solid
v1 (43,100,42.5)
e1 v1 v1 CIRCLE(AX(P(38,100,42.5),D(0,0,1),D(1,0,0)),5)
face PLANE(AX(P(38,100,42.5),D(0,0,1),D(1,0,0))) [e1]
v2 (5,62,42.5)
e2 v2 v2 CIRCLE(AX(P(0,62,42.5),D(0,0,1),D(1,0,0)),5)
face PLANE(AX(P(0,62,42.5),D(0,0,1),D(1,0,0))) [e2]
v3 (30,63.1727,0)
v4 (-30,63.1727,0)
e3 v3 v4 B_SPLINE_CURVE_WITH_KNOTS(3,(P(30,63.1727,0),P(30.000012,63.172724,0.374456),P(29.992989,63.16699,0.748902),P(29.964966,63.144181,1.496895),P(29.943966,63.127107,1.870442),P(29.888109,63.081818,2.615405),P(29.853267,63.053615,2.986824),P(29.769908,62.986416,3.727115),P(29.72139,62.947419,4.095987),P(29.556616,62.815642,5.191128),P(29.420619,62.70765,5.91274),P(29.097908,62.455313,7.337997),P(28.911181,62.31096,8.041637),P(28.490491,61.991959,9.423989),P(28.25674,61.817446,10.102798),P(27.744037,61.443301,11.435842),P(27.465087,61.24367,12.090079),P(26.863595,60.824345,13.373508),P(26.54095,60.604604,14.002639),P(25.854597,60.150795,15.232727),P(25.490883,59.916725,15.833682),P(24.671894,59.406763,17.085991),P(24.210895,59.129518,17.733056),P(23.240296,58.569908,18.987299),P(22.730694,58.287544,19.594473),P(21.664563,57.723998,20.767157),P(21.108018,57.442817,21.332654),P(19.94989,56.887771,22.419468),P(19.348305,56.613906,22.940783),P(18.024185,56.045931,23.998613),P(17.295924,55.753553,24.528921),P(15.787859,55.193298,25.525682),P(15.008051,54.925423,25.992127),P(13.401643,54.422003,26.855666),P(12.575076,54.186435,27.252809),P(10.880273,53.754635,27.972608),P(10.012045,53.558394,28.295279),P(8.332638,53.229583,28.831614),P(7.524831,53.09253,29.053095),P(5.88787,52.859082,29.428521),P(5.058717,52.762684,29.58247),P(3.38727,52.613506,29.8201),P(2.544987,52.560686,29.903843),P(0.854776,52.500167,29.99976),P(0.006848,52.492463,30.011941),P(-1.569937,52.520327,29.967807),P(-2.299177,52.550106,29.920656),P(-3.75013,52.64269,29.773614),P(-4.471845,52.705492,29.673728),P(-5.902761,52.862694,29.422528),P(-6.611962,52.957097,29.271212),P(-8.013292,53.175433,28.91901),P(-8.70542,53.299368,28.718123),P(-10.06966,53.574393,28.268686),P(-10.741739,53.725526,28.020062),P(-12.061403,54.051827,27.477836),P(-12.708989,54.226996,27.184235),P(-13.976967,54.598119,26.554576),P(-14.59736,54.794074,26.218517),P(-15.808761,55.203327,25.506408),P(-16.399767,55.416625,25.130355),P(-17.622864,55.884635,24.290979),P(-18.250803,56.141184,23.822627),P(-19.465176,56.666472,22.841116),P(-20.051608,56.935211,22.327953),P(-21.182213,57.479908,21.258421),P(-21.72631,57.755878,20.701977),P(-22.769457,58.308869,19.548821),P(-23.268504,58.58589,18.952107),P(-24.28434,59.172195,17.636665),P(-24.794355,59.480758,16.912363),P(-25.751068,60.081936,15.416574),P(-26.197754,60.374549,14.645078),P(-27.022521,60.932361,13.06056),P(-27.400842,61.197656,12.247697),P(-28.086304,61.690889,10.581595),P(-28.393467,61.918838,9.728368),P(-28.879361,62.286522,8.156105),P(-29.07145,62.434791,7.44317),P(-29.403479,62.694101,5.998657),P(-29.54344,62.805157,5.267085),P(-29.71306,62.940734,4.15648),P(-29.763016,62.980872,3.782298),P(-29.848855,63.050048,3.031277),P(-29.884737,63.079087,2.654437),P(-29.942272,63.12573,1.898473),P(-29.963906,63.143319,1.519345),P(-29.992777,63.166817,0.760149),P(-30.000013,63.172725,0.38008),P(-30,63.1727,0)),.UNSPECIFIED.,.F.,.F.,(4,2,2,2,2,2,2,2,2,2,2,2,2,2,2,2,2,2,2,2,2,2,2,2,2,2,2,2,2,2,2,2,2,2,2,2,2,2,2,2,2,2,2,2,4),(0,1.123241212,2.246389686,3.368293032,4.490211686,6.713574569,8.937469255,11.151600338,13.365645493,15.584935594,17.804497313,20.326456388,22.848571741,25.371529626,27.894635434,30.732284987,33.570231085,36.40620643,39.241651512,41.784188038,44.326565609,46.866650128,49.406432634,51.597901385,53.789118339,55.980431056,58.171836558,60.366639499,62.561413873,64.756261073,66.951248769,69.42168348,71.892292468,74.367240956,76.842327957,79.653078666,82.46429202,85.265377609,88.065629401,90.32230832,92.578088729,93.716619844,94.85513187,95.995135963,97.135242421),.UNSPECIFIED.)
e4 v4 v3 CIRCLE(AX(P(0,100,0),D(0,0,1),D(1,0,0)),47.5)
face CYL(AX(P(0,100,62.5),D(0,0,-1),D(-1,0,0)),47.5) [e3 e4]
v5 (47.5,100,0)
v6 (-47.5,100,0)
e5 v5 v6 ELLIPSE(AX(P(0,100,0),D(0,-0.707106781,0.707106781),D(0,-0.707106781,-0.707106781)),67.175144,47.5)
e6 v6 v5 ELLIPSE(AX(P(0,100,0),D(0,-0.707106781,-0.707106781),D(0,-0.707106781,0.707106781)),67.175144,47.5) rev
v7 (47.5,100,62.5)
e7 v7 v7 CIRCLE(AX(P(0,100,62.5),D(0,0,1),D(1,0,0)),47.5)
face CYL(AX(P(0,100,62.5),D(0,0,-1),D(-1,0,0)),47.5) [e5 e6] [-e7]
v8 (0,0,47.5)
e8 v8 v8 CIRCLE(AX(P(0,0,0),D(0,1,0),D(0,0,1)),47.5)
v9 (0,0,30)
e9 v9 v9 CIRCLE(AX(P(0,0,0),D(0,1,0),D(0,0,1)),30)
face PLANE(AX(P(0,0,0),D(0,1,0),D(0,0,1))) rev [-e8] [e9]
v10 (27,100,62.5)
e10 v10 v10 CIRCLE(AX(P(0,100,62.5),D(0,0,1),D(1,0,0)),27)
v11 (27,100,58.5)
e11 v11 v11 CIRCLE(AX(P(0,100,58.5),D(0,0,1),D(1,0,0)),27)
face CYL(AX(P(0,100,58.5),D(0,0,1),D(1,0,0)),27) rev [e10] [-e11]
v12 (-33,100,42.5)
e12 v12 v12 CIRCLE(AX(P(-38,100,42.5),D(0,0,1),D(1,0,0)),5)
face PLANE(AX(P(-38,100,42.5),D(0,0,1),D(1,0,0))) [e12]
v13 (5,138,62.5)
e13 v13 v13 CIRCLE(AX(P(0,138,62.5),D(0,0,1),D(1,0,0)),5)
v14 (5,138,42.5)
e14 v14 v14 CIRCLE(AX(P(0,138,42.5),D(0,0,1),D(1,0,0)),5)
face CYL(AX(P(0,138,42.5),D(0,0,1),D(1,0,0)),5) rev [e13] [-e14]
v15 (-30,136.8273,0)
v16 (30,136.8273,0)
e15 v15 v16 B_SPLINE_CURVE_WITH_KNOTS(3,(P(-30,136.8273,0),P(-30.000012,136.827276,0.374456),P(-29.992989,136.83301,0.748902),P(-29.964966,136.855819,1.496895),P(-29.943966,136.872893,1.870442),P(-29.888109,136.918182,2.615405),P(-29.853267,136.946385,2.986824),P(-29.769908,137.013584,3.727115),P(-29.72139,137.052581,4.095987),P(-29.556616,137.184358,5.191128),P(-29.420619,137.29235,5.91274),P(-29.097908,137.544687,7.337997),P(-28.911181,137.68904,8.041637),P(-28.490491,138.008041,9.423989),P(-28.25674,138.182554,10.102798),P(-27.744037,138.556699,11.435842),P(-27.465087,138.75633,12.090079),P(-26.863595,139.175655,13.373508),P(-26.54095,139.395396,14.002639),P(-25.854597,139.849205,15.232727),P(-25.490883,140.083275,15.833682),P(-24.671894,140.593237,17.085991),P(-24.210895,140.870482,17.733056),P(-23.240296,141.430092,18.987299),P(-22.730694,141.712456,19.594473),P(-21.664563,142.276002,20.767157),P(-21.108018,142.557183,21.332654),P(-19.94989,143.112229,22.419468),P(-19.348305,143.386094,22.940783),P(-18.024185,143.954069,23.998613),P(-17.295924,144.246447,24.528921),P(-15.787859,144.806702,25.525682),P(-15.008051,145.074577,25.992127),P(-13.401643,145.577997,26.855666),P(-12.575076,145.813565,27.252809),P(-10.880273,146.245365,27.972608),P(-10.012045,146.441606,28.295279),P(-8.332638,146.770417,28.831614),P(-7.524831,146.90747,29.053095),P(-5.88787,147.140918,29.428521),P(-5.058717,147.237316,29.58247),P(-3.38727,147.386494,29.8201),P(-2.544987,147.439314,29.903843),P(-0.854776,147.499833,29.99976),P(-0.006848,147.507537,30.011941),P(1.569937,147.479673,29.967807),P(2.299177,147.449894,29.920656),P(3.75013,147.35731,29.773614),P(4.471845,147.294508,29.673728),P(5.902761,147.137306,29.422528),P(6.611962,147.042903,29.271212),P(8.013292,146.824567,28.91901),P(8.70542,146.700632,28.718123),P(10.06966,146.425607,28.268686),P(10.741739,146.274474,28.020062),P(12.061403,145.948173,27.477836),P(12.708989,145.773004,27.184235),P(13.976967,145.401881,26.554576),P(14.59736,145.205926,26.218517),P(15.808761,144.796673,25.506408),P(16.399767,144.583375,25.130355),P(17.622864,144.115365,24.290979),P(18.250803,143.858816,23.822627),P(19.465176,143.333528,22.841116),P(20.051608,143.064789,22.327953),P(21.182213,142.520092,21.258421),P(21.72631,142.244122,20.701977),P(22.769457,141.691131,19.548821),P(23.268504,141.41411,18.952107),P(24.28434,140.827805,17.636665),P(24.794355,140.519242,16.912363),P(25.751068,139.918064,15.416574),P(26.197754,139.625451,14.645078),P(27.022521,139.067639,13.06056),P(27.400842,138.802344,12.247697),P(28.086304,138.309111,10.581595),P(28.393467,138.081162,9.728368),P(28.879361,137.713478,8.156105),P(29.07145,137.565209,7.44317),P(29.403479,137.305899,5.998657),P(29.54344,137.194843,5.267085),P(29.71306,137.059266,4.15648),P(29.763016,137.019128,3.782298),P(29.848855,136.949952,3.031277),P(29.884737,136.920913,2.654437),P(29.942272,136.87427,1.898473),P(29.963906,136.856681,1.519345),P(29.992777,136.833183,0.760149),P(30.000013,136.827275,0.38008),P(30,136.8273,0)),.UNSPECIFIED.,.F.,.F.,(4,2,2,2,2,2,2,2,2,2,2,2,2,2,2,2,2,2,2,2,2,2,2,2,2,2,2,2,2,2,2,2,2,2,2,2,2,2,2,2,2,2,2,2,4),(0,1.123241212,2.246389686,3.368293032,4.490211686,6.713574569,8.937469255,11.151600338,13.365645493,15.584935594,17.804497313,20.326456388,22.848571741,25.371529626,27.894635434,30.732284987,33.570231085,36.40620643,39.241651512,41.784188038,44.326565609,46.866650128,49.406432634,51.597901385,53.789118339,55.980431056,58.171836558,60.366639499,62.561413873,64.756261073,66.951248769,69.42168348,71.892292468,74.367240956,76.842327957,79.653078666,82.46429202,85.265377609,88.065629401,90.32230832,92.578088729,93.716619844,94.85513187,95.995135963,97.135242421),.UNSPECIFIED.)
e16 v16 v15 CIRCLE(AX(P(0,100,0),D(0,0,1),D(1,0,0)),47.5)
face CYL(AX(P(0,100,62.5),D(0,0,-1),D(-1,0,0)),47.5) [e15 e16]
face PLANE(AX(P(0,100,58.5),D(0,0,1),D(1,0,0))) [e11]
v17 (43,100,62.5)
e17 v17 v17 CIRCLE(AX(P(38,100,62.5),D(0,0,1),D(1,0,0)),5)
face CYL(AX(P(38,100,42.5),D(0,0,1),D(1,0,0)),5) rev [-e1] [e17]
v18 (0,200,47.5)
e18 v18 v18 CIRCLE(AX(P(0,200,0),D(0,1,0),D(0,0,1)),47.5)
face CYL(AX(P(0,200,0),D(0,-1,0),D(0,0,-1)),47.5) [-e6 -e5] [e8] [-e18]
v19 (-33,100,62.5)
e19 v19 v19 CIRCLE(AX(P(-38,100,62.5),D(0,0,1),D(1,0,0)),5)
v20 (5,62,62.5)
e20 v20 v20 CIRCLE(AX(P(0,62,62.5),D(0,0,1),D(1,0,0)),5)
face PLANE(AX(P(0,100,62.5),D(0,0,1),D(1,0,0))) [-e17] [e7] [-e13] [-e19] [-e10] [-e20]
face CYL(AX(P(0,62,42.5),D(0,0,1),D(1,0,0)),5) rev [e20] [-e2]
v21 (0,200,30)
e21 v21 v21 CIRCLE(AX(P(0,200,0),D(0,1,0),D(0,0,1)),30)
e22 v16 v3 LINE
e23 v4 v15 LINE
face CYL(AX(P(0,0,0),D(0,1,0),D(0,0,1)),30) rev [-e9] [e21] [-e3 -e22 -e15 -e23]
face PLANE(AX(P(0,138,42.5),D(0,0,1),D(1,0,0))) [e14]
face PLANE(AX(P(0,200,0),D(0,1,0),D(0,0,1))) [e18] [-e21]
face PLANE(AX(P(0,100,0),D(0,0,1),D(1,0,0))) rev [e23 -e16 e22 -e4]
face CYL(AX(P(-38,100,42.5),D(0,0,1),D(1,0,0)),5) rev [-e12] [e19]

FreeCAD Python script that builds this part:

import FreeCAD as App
import Part
import Sketcher

V = App.Vector

doc = App.newDocument("Part")
body = doc.addObject("PartDesign::Body", "Body")

# Sketch on XZ plane
sketch1 = body.newObject("Sketcher::SketchObject", "Sketch")
sketch1.AttachmentSupport = (doc.getObject("XZ_Plane"), [""])
sketch1.MapMode = "FlatFace"
sketch1.addGeometry(Part.Circle(V(0, 0, 0), V(0, 0, 1), 48), False)
sketch1.addConstraint([
    Sketcher.Constraint("Coincident", 0, 3, -1, 1),
    Sketcher.Constraint("Diameter", 0, 95.0),
])
pad1 = body.newObject("PartDesign::Pad", "Pad")
pad1.Profile = sketch1
pad1.Length = 200
pad1.Reversed = True

# Sketch on XZ plane
sketch2 = body.newObject("Sketcher::SketchObject", "Sketch001")
sketch2.AttachmentSupport = (doc.getObject("XZ_Plane"), [""])
sketch2.MapMode = "FlatFace"
sketch2.AttachmentOffset = App.Placement(V(0, 0, -200), App.Rotation())
sketch2.addGeometry(Part.Circle(V(0, 0, 0), V(0, 0, 1), 30), False)
sketch2.addConstraint([
    Sketcher.Constraint("Coincident", 0, 3, -1, 1),
    Sketcher.Constraint("Diameter", 0, 60.0),
])
pocket1 = body.newObject("PartDesign::Pocket", "Pocket")
pocket1.Profile = sketch2
pocket1.Length = 200
pocket1.Reversed = True

# Sketch on XY plane
sketch3 = body.newObject("Sketcher::SketchObject", "Sketch002")
sketch3.AttachmentSupport = (doc.getObject("XY_Plane"), [""])
sketch3.MapMode = "FlatFace"
sketch3.addGeometry(Part.Circle(V(0, 100, 0), V(0, 0, 1), 48), False)
sketch3.addConstraint([
    Sketcher.Constraint("PointOnObject", 0, 3, -2),
    Sketcher.Constraint("Diameter", 0, 95.0),
    Sketcher.Constraint("DistanceY", -1, 1, 0, 3, 100.0),
])
pad2 = body.newObject("PartDesign::Pad", "Pad001")
pad2.Profile = sketch3
pad2.Length = 62.5

# Sketch on XY plane
sketch4 = body.newObject("Sketcher::SketchObject", "Sketch003")
sketch4.AttachmentSupport = (doc.getObject("XY_Plane"), [""])
sketch4.MapMode = "FlatFace"
sketch4.AttachmentOffset = App.Placement(V(0, 0, 62.5), App.Rotation())
sketch4.addGeometry([
    Part.Circle(V(0, 138, 0), V(0, 0, 1), 5),
    Part.Circle(V(0, 62, 0), V(0, 0, 1), 5),
    Part.Circle(V(38, 100, 0), V(0, 0, 1), 5),
    Part.Circle(V(-38, 100, 0), V(0, 0, 1), 5),
], False)
sketch4.addConstraint([
    Sketcher.Constraint("Equal", 0, 1),
    Sketcher.Constraint("Equal", 1, 2),
    Sketcher.Constraint("Equal", 2, 3),
    Sketcher.Constraint("Symmetric", 2, 3, 3, 3, -2),
    Sketcher.Constraint("PointOnObject", 0, 3, -2),
    Sketcher.Constraint("PointOnObject", 1, 3, -2),
    Sketcher.Constraint("Diameter", 0, 10.0),
    Sketcher.Constraint("DistanceY", -1, 1, 0, 3, 138.0),
    Sketcher.Constraint("DistanceY", -1, 1, 1, 3, 62.0),
    Sketcher.Constraint("DistanceX", -1, 1, 2, 3, 38.0),
    Sketcher.Constraint("DistanceY", -1, 1, 2, 3, 100.0),
])
pocket2 = body.newObject("PartDesign::Pocket", "Pocket001")
pocket2.Profile = sketch4
pocket2.Length = 20

# Sketch on XY plane
sketch5 = body.newObject("Sketcher::SketchObject", "Sketch004")
sketch5.AttachmentSupport = (doc.getObject("XY_Plane"), [""])
sketch5.MapMode = "FlatFace"
sketch5.AttachmentOffset = App.Placement(V(0, 0, 62.5), App.Rotation())
sketch5.addGeometry(Part.Circle(V(0, 100, 0), V(0, 0, 1), 27), False)
sketch5.addConstraint([
    Sketcher.Constraint("PointOnObject", 0, 3, -2),
    Sketcher.Constraint("Diameter", 0, 54.0),
    Sketcher.Constraint("DistanceY", -1, 1, 0, 3, 100.0),
])
pocket3 = body.newObject("PartDesign::Pocket", "Pocket002")
pocket3.Profile = sketch5
pocket3.Length = 4

doc.recompute()
